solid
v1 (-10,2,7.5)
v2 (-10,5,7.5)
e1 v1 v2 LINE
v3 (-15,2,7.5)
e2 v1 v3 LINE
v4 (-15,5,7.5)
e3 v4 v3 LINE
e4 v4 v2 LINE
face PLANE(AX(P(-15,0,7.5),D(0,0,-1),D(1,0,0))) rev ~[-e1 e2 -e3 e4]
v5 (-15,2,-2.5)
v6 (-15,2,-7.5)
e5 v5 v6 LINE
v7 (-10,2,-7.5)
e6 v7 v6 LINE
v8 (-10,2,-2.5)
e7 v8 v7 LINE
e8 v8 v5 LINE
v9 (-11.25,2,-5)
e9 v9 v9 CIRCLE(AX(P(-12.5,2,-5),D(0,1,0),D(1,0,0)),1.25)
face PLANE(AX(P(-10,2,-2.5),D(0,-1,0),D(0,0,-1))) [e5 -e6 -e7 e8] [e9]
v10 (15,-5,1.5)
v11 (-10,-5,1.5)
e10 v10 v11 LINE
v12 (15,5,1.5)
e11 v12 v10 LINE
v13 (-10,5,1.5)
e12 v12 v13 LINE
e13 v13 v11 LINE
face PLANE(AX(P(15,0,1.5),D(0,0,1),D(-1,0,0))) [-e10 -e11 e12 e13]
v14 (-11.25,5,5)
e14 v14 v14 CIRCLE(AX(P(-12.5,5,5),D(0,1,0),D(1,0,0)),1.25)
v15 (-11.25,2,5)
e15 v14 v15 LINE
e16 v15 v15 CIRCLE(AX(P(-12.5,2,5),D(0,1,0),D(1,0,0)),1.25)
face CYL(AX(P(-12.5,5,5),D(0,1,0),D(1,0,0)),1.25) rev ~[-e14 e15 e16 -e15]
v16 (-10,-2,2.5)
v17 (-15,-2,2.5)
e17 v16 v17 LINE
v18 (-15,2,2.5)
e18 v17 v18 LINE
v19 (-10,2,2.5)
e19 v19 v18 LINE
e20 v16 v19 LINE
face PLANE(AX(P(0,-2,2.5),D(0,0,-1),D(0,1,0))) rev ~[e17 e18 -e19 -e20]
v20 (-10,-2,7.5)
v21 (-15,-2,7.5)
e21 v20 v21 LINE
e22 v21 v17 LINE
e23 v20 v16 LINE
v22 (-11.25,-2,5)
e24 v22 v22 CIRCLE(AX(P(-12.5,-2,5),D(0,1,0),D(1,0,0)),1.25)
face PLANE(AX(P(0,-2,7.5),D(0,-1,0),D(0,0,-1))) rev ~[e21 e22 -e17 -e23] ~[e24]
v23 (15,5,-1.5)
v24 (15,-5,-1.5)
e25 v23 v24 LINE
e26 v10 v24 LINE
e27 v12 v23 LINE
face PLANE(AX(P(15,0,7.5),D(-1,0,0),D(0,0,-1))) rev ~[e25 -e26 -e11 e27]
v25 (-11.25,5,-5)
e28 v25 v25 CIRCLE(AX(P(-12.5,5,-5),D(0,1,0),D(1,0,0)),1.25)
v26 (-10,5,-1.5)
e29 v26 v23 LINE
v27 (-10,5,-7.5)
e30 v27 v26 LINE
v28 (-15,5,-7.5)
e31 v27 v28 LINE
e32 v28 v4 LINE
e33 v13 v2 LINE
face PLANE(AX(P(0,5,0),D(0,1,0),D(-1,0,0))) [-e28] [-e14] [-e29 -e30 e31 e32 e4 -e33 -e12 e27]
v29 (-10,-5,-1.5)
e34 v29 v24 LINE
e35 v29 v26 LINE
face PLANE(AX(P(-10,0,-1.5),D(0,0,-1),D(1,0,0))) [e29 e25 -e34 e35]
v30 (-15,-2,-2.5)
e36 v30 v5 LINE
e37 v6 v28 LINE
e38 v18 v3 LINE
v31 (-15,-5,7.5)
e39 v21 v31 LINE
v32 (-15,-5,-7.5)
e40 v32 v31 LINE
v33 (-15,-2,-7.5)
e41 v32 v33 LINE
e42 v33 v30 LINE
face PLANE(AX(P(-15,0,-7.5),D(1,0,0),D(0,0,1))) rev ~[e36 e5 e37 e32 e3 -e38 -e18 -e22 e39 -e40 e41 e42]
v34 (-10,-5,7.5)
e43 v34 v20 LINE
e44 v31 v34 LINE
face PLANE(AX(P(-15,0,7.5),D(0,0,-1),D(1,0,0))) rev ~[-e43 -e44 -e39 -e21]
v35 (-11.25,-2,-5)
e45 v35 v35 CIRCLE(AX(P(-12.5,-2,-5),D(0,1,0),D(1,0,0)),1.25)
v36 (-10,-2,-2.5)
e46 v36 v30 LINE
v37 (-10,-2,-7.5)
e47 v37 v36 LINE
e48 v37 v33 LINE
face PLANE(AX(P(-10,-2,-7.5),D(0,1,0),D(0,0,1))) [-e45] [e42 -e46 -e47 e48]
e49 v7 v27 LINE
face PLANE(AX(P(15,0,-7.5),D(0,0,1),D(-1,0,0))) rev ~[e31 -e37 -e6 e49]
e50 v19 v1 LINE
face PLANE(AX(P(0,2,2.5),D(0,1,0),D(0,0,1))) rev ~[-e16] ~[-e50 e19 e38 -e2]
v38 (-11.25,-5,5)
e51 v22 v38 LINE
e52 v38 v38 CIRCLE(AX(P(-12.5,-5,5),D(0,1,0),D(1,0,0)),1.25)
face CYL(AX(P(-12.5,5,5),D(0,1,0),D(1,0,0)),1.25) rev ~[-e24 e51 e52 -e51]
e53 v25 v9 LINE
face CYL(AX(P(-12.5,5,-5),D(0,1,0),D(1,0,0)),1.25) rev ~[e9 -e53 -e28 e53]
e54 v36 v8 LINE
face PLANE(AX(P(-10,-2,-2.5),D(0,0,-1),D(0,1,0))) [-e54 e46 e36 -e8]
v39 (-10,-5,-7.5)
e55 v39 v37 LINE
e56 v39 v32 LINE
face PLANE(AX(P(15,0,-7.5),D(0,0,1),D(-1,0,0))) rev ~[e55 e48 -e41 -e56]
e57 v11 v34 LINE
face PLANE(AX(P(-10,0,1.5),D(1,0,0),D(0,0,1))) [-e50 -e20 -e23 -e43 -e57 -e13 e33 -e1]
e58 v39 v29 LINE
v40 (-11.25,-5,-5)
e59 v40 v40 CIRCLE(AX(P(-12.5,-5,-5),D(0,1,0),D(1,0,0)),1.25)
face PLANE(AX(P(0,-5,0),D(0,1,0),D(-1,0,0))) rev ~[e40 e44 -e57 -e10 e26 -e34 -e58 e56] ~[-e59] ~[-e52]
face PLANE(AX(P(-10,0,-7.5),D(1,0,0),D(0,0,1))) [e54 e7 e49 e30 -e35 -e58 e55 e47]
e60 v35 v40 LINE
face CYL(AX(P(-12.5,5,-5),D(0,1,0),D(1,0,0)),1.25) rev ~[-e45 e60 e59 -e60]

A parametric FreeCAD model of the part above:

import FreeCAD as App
import Part
import Sketcher
from FreeCAD import Vector
Q = App.Units.Quantity


def add_polygon(sketch, points):
    """Adds a closed chain of lines whose ends are joined by coincident constraints."""
    first, n = sketch.GeometryCount, len(points)
    for a, b in zip(points, points[1:] + points[:1]):
        sketch.addGeometry(Part.LineSegment(App.Vector(*a, 0), App.Vector(*b, 0)), False)
    for i in range(n):
        sketch.addConstraint(Sketcher.Constraint("Coincident", first + i, 2, first + (i + 1) % n, 1))

doc = App.newDocument("Part")
body = doc.addObject("PartDesign::Body", "Body")

sketch1 = body.newObject("Sketcher::SketchObject", "Sketch")
sketch1.AttachmentSupport = (doc.getObject("XZ_Plane"), [""])
sketch1.MapMode = "FlatFace"
add_polygon(sketch1, [(15, 8), (15, -8), (-15, -8), (-15, 8)])
sketch1.addConstraint([
    Sketcher.Constraint("Vertical", 0),
    Sketcher.Constraint("Horizontal", 1),
    Sketcher.Constraint("Vertical", 2),
    Sketcher.Constraint("Horizontal", 3),
    Sketcher.Constraint("Symmetric", 0, 2, 2, 2, -1, 1),
    Sketcher.Constraint("DistanceX", 1, 2, 1, 1, Q("30 mm")),
    Sketcher.Constraint("DistanceY", 0, 2, 0, 1, Q("15 mm")),
])
pad1 = body.newObject("PartDesign::Pad", "Pad")
pad1.Profile = sketch1
pad1.Length = 10
pad1.Midplane = True

sketch2 = body.newObject("Sketcher::SketchObject", "Sketch001")
sketch2.AttachmentSupport = (doc.getObject("XZ_Plane"), [""])
sketch2.MapMode = "FlatFace"
add_polygon(sketch2, [(-10, 2), (-10, 8), (15, 8), (15, 2)])
sketch2.addConstraint([
    Sketcher.Constraint("Vertical", 0),
    Sketcher.Constraint("Horizontal", 1),
    Sketcher.Constraint("Vertical", 2),
    Sketcher.Constraint("Horizontal", 3),
    Sketcher.Constraint("DistanceX", 1, 1, 1, 2, Q("25 mm")),
    Sketcher.Constraint("DistanceY", 0, 1, 0, 2, Q("6 mm")),
    Sketcher.Constraint("DistanceX", 0, 2, -1, 1, Q("10 mm")),
    Sketcher.Constraint("DistanceY", -1, 1, 0, 2, Q("7.5 mm")),
])
pocket1 = body.newObject("PartDesign::Pocket", "Pocket")
pocket1.Profile = sketch2
pocket1.Length = 10
pocket1.Midplane = True

sketch3 = body.newObject("Sketcher::SketchObject", "Sketch002")
sketch3.AttachmentSupport = (doc.getObject("XZ_Plane"), [""])
sketch3.MapMode = "FlatFace"
add_polygon(sketch3, [(15, -8), (-10, -8), (-10, -2), (15, -2)])
sketch3.addConstraint([
    Sketcher.Constraint("Horizontal", 0),
    Sketcher.Constraint("Vertical", 1),
    Sketcher.Constraint("Horizontal", 2),
    Sketcher.Constraint("Vertical", 3),
    Sketcher.Constraint("DistanceX", 0, 2, 0, 1, Q("25 mm")),
    Sketcher.Constraint("DistanceY", 1, 1, 1, 2, Q("6 mm")),
    Sketcher.Constraint("DistanceX", 0, 2, -1, 1, Q("10 mm")),
    Sketcher.Constraint("DistanceY", 0, 2, -1, 1, Q("7.5 mm")),
])
pocket2 = body.newObject("PartDesign::Pocket", "Pocket001")
pocket2.Profile = sketch3
pocket2.Length = 10
pocket2.Midplane = True

sketch4 = body.newObject("Sketcher::SketchObject", "Sketch003")
sketch4.AttachmentSupport = (doc.getObject("YZ_Plane"), [""])
sketch4.MapMode = "FlatFace"
add_polygon(sketch4, [(2, 2.5), (2, 7.5), (-2, 7.5), (-2, 2.5)])
sketch4.addConstraint([
    Sketcher.Constraint("Vertical", 0),
    Sketcher.Constraint("Horizontal", 1),
    Sketcher.Constraint("Vertical", 2),
    Sketcher.Constraint("Horizontal", 3),
    Sketcher.Constraint("DistanceX", 1, 2, 1, 1, Q("4 mm")),
    Sketcher.Constraint("DistanceY", 0, 1, 0, 2, Q("5 mm")),
    Sketcher.Constraint("DistanceX", -1, 1, 0, 2, Q("2 mm")),
    Sketcher.Constraint("DistanceY", -1, 1, 0, 2, Q("7.5 mm")),
])
pocket3 = body.newObject("PartDesign::Pocket", "Pocket002")
pocket3.Profile = sketch4
pocket3.Length = 15

sketch5 = body.newObject("Sketcher::SketchObject", "Sketch004")
sketch5.AttachmentSupport = (doc.getObject("XZ_Plane"), [""])
sketch5.MapMode = "FlatFace"
sketch5.AttachmentOffset = App.Placement(Vector(0, 0, -5), App.Rotation())
sketch5.addGeometry(Part.Circle(Vector(-12.5, 5, 0), Vector(0, 0, 1), 1.2), False)
sketch5.addConstraint([
    Sketcher.Constraint("Diameter", 0, Q("2.5 mm")),
    Sketcher.Constraint("DistanceY", -1, 1, 0, 3, Q("5 mm")),
    Sketcher.Constraint("DistanceX", 0, 3, -1, 1, Q("12.5 mm")),
])
pocket4 = body.newObject("PartDesign::Pocket", "Pocket003")
pocket4.Profile = sketch5
pocket4.Length = 15
pocket4.Reversed = True

sketch6 = body.newObject("Sketcher::SketchObject", "Sketch005")
sketch6.AttachmentSupport = (doc.getObject("XZ_Plane"), [""])
sketch6.MapMode = "FlatFace"
sketch6.AttachmentOffset = App.Placement(Vector(0, 0, -5), App.Rotation())
sketch6.addGeometry(Part.Circle(Vector(-12.5, -5, 0), Vector(0, 0, 1), 1.2), False)
sketch6.addConstraint([
    Sketcher.Constraint("Diameter", 0, Q("2.5 mm")),
    Sketcher.Constraint("DistanceY", 0, 3, -1, 1, Q("5 mm")),
    Sketcher.Constraint("DistanceX", 0, 3, -1, 1, Q("12.5 mm")),
])
pocket5 = body.newObject("PartDesign::Pocket", "Pocket004")
pocket5.Profile = sketch6
pocket5.Length = 15
pocket5.Reversed = True

sketch7 = body.newObject("Sketcher::SketchObject", "Sketch006")
sketch7.AttachmentSupport = (doc.getObject("YZ_Plane"), [""])
sketch7.MapMode = "FlatFace"
sketch7.AttachmentOffset = App.Placement(Vector(0, 0, -10), App.Rotation())
add_polygon(sketch7, [(2, -7.5), (2, -2.5), (-2, -2.5), (-2, -7.5)])
sketch7.addConstraint([
    Sketcher.Constraint("Vertical", 0),
    Sketcher.Constraint("Horizontal", 1),
    Sketcher.Constraint("Vertical", 2),
    Sketcher.Constraint("Horizontal", 3),
    Sketcher.Constraint("DistanceX", 1, 2, 1, 1, Q("4 mm")),
    Sketcher.Constraint("DistanceY", 0, 1, 0, 2, Q("5 mm")),
    Sketcher.Constraint("DistanceX", -1, 1, 0, 2, Q("2 mm")),
    Sketcher.Constraint("DistanceY", 2, 2, -1, 1, Q("7.5 mm")),
])
pocket6 = body.newObject("PartDesign::Pocket", "Pocket005")
pocket6.Profile = sketch7
pocket6.Length = 15

doc.recompute()
